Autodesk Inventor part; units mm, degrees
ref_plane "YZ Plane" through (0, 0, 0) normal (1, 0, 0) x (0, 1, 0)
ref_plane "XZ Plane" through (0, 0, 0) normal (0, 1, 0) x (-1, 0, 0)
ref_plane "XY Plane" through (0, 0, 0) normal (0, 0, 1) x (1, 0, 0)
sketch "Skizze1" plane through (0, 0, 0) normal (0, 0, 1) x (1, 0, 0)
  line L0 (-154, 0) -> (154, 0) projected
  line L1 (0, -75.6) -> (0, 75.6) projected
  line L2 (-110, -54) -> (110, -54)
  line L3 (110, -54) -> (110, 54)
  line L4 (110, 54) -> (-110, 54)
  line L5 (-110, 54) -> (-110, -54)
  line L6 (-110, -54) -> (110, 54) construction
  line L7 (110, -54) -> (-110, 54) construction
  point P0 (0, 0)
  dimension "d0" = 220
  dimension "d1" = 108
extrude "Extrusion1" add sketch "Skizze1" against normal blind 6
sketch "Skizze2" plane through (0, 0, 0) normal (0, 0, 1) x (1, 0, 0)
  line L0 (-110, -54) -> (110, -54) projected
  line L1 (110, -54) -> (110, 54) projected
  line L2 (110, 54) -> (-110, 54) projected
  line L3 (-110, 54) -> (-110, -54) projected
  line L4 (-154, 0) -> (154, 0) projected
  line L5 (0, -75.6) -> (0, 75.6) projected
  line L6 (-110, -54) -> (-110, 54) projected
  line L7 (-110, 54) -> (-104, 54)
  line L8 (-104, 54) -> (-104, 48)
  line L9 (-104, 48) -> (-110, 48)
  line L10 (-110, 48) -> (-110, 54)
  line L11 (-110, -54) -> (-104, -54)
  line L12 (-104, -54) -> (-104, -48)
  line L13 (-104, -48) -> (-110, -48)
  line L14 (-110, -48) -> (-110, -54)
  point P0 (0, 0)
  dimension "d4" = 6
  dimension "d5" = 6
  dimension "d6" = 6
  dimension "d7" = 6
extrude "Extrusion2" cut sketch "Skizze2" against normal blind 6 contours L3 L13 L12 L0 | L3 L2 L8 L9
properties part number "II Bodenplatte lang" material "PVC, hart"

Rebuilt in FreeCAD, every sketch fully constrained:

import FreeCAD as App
import Part
import Sketcher
from FreeCAD import Vector
Q = App.Units.Quantity

doc = App.newDocument("Part")
params = doc.addObject("Spreadsheet::Sheet", "Params")
for row, (alias, value) in enumerate([
    ("sketch1_width", "220 mm"),
    ("sketch1_height", "108 mm"),
    ("pad1_length", "6 mm"),
    ("sketch2_width", "6 mm"),
    ("pocket1_length", "6 mm"),
], start=1):
    params.set(f"A{row}", alias)
    params.set(f"B{row}", "=" + value)
    params.setAlias(f"B{row}", alias)

body = doc.addObject("PartDesign::Body", "Body")

# Sketch on XY plane
sketch1 = body.newObject("Sketcher::SketchObject", "Sketch")
sketch1.AttachmentSupport = (doc.getObject("XY_Plane"), [""])
sketch1.MapMode = "FlatFace"
sketch1.addGeometry(Part.LineSegment(Vector(-110, 54, 0), Vector(-110, -54, 0)), False)
sketch1.addGeometry(Part.LineSegment(Vector(-110, -54, 0), Vector(110, -54, 0)), False)
sketch1.addGeometry(Part.LineSegment(Vector(110, -54, 0), Vector(110, 54, 0)), False)
sketch1.addGeometry(Part.LineSegment(Vector(110, 54, 0), Vector(-110, 54, 0)), False)
sketch1.addConstraint(Sketcher.Constraint("Coincident", 0, 2, 1, 1))
sketch1.addConstraint(Sketcher.Constraint("Coincident", 1, 2, 2, 1))
sketch1.addConstraint(Sketcher.Constraint("Coincident", 2, 2, 3, 1))
sketch1.addConstraint(Sketcher.Constraint("Coincident", 3, 2, 0, 1))
sketch1.addConstraint(Sketcher.Constraint("Vertical", 0))
sketch1.addConstraint(Sketcher.Constraint("Horizontal", 1))
sketch1.addConstraint(Sketcher.Constraint("Vertical", 2))
sketch1.addConstraint(Sketcher.Constraint("Horizontal", 3))
sketch1.addConstraint(Sketcher.Constraint("Symmetric", 0, 2, 2, 2, -1, 1))
sketch1.addConstraint(Sketcher.Constraint("DistanceX", 1, 1, 1, 2, Q("220 mm")))
sketch1.addConstraint(Sketcher.Constraint("DistanceY", 0, 2, 0, 1, Q("108 mm")))
sketch1.setExpression("Constraints[9]", "Params.sketch1_width")
sketch1.setExpression("Constraints[10]", "Params.sketch1_height")
pad1 = body.newObject("PartDesign::Pad", "Pad")
pad1.Profile = sketch1
pad1.setExpression("Length", "Params.pad1_length")
pad1.Reversed = True

# Sketch on XY plane
sketch2 = body.newObject("Sketcher::SketchObject", "Sketch001")
sketch2.AttachmentSupport = (doc.getObject("XY_Plane"), [""])
sketch2.MapMode = "FlatFace"
sketch2.addGeometry(Part.LineSegment(Vector(-110, -48, 0), Vector(-110, -54, 0)), False)
sketch2.addGeometry(Part.LineSegment(Vector(-110, -54, 0), Vector(-104, -54, 0)), False)
sketch2.addGeometry(Part.LineSegment(Vector(-104, -54, 0), Vector(-104, -48, 0)), False)
sketch2.addGeometry(Part.LineSegment(Vector(-104, -48, 0), Vector(-110, -48, 0)), False)
sketch2.addGeometry(Part.LineSegment(Vector(-110, 54, 0), Vector(-110, 48, 0)), False)
sketch2.addGeometry(Part.LineSegment(Vector(-110, 48, 0), Vector(-104, 48, 0)), False)
sketch2.addGeometry(Part.LineSegment(Vector(-104, 48, 0), Vector(-104, 54, 0)), False)
sketch2.addGeometry(Part.LineSegment(Vector(-104, 54, 0), Vector(-110, 54, 0)), False)
sketch2.addConstraint(Sketcher.Constraint("Coincident", 0, 2, 1, 1))
sketch2.addConstraint(Sketcher.Constraint("Coincident", 1, 2, 2, 1))
sketch2.addConstraint(Sketcher.Constraint("Coincident", 2, 2, 3, 1))
sketch2.addConstraint(Sketcher.Constraint("Coincident", 3, 2, 0, 1))
sketch2.addConstraint(Sketcher.Constraint("Coincident", 4, 2, 5, 1))
sketch2.addConstraint(Sketcher.Constraint("Coincident", 5, 2, 6, 1))
sketch2.addConstraint(Sketcher.Constraint("Coincident", 6, 2, 7, 1))
sketch2.addConstraint(Sketcher.Constraint("Coincident", 7, 2, 4, 1))
sketch2.addConstraint(Sketcher.Constraint("Vertical", 0))
sketch2.addConstraint(Sketcher.Constraint("Horizontal", 1))
sketch2.addConstraint(Sketcher.Constraint("Vertical", 2))
sketch2.addConstraint(Sketcher.Constraint("Horizontal", 3))
sketch2.addConstraint(Sketcher.Constraint("Vertical", 4))
sketch2.addConstraint(Sketcher.Constraint("Horizontal", 5))
sketch2.addConstraint(Sketcher.Constraint("Vertical", 6))
sketch2.addConstraint(Sketcher.Constraint("Horizontal", 7))
sketch2.addConstraint(Sketcher.Constraint("Symmetric", 3, 2, 4, 2, -1))
sketch2.addConstraint(Sketcher.Constraint("Symmetric", 1, 2, 6, 2, -1))
sketch2.addConstraint(Sketcher.Constraint("Equal", 7, 0))
sketch2.addConstraint(Sketcher.Constraint("DistanceX", 1, 1, 1, 2, Q("6 mm")))
sketch2.addConstraint(Sketcher.Constraint("DistanceX", 0, 2, -1, 1, Q("110 mm")))
sketch2.addConstraint(Sketcher.Constraint("DistanceY", 0, 2, -1, 1, Q("54 mm")))
sketch2.setExpression("Constraints[19]", "Params.sketch2_width")
pocket1 = body.newObject("PartDesign::Pocket", "Pocket")
pocket1.Profile = sketch2
pocket1.setExpression("Length", "Params.pocket1_length")

doc.recompute()
